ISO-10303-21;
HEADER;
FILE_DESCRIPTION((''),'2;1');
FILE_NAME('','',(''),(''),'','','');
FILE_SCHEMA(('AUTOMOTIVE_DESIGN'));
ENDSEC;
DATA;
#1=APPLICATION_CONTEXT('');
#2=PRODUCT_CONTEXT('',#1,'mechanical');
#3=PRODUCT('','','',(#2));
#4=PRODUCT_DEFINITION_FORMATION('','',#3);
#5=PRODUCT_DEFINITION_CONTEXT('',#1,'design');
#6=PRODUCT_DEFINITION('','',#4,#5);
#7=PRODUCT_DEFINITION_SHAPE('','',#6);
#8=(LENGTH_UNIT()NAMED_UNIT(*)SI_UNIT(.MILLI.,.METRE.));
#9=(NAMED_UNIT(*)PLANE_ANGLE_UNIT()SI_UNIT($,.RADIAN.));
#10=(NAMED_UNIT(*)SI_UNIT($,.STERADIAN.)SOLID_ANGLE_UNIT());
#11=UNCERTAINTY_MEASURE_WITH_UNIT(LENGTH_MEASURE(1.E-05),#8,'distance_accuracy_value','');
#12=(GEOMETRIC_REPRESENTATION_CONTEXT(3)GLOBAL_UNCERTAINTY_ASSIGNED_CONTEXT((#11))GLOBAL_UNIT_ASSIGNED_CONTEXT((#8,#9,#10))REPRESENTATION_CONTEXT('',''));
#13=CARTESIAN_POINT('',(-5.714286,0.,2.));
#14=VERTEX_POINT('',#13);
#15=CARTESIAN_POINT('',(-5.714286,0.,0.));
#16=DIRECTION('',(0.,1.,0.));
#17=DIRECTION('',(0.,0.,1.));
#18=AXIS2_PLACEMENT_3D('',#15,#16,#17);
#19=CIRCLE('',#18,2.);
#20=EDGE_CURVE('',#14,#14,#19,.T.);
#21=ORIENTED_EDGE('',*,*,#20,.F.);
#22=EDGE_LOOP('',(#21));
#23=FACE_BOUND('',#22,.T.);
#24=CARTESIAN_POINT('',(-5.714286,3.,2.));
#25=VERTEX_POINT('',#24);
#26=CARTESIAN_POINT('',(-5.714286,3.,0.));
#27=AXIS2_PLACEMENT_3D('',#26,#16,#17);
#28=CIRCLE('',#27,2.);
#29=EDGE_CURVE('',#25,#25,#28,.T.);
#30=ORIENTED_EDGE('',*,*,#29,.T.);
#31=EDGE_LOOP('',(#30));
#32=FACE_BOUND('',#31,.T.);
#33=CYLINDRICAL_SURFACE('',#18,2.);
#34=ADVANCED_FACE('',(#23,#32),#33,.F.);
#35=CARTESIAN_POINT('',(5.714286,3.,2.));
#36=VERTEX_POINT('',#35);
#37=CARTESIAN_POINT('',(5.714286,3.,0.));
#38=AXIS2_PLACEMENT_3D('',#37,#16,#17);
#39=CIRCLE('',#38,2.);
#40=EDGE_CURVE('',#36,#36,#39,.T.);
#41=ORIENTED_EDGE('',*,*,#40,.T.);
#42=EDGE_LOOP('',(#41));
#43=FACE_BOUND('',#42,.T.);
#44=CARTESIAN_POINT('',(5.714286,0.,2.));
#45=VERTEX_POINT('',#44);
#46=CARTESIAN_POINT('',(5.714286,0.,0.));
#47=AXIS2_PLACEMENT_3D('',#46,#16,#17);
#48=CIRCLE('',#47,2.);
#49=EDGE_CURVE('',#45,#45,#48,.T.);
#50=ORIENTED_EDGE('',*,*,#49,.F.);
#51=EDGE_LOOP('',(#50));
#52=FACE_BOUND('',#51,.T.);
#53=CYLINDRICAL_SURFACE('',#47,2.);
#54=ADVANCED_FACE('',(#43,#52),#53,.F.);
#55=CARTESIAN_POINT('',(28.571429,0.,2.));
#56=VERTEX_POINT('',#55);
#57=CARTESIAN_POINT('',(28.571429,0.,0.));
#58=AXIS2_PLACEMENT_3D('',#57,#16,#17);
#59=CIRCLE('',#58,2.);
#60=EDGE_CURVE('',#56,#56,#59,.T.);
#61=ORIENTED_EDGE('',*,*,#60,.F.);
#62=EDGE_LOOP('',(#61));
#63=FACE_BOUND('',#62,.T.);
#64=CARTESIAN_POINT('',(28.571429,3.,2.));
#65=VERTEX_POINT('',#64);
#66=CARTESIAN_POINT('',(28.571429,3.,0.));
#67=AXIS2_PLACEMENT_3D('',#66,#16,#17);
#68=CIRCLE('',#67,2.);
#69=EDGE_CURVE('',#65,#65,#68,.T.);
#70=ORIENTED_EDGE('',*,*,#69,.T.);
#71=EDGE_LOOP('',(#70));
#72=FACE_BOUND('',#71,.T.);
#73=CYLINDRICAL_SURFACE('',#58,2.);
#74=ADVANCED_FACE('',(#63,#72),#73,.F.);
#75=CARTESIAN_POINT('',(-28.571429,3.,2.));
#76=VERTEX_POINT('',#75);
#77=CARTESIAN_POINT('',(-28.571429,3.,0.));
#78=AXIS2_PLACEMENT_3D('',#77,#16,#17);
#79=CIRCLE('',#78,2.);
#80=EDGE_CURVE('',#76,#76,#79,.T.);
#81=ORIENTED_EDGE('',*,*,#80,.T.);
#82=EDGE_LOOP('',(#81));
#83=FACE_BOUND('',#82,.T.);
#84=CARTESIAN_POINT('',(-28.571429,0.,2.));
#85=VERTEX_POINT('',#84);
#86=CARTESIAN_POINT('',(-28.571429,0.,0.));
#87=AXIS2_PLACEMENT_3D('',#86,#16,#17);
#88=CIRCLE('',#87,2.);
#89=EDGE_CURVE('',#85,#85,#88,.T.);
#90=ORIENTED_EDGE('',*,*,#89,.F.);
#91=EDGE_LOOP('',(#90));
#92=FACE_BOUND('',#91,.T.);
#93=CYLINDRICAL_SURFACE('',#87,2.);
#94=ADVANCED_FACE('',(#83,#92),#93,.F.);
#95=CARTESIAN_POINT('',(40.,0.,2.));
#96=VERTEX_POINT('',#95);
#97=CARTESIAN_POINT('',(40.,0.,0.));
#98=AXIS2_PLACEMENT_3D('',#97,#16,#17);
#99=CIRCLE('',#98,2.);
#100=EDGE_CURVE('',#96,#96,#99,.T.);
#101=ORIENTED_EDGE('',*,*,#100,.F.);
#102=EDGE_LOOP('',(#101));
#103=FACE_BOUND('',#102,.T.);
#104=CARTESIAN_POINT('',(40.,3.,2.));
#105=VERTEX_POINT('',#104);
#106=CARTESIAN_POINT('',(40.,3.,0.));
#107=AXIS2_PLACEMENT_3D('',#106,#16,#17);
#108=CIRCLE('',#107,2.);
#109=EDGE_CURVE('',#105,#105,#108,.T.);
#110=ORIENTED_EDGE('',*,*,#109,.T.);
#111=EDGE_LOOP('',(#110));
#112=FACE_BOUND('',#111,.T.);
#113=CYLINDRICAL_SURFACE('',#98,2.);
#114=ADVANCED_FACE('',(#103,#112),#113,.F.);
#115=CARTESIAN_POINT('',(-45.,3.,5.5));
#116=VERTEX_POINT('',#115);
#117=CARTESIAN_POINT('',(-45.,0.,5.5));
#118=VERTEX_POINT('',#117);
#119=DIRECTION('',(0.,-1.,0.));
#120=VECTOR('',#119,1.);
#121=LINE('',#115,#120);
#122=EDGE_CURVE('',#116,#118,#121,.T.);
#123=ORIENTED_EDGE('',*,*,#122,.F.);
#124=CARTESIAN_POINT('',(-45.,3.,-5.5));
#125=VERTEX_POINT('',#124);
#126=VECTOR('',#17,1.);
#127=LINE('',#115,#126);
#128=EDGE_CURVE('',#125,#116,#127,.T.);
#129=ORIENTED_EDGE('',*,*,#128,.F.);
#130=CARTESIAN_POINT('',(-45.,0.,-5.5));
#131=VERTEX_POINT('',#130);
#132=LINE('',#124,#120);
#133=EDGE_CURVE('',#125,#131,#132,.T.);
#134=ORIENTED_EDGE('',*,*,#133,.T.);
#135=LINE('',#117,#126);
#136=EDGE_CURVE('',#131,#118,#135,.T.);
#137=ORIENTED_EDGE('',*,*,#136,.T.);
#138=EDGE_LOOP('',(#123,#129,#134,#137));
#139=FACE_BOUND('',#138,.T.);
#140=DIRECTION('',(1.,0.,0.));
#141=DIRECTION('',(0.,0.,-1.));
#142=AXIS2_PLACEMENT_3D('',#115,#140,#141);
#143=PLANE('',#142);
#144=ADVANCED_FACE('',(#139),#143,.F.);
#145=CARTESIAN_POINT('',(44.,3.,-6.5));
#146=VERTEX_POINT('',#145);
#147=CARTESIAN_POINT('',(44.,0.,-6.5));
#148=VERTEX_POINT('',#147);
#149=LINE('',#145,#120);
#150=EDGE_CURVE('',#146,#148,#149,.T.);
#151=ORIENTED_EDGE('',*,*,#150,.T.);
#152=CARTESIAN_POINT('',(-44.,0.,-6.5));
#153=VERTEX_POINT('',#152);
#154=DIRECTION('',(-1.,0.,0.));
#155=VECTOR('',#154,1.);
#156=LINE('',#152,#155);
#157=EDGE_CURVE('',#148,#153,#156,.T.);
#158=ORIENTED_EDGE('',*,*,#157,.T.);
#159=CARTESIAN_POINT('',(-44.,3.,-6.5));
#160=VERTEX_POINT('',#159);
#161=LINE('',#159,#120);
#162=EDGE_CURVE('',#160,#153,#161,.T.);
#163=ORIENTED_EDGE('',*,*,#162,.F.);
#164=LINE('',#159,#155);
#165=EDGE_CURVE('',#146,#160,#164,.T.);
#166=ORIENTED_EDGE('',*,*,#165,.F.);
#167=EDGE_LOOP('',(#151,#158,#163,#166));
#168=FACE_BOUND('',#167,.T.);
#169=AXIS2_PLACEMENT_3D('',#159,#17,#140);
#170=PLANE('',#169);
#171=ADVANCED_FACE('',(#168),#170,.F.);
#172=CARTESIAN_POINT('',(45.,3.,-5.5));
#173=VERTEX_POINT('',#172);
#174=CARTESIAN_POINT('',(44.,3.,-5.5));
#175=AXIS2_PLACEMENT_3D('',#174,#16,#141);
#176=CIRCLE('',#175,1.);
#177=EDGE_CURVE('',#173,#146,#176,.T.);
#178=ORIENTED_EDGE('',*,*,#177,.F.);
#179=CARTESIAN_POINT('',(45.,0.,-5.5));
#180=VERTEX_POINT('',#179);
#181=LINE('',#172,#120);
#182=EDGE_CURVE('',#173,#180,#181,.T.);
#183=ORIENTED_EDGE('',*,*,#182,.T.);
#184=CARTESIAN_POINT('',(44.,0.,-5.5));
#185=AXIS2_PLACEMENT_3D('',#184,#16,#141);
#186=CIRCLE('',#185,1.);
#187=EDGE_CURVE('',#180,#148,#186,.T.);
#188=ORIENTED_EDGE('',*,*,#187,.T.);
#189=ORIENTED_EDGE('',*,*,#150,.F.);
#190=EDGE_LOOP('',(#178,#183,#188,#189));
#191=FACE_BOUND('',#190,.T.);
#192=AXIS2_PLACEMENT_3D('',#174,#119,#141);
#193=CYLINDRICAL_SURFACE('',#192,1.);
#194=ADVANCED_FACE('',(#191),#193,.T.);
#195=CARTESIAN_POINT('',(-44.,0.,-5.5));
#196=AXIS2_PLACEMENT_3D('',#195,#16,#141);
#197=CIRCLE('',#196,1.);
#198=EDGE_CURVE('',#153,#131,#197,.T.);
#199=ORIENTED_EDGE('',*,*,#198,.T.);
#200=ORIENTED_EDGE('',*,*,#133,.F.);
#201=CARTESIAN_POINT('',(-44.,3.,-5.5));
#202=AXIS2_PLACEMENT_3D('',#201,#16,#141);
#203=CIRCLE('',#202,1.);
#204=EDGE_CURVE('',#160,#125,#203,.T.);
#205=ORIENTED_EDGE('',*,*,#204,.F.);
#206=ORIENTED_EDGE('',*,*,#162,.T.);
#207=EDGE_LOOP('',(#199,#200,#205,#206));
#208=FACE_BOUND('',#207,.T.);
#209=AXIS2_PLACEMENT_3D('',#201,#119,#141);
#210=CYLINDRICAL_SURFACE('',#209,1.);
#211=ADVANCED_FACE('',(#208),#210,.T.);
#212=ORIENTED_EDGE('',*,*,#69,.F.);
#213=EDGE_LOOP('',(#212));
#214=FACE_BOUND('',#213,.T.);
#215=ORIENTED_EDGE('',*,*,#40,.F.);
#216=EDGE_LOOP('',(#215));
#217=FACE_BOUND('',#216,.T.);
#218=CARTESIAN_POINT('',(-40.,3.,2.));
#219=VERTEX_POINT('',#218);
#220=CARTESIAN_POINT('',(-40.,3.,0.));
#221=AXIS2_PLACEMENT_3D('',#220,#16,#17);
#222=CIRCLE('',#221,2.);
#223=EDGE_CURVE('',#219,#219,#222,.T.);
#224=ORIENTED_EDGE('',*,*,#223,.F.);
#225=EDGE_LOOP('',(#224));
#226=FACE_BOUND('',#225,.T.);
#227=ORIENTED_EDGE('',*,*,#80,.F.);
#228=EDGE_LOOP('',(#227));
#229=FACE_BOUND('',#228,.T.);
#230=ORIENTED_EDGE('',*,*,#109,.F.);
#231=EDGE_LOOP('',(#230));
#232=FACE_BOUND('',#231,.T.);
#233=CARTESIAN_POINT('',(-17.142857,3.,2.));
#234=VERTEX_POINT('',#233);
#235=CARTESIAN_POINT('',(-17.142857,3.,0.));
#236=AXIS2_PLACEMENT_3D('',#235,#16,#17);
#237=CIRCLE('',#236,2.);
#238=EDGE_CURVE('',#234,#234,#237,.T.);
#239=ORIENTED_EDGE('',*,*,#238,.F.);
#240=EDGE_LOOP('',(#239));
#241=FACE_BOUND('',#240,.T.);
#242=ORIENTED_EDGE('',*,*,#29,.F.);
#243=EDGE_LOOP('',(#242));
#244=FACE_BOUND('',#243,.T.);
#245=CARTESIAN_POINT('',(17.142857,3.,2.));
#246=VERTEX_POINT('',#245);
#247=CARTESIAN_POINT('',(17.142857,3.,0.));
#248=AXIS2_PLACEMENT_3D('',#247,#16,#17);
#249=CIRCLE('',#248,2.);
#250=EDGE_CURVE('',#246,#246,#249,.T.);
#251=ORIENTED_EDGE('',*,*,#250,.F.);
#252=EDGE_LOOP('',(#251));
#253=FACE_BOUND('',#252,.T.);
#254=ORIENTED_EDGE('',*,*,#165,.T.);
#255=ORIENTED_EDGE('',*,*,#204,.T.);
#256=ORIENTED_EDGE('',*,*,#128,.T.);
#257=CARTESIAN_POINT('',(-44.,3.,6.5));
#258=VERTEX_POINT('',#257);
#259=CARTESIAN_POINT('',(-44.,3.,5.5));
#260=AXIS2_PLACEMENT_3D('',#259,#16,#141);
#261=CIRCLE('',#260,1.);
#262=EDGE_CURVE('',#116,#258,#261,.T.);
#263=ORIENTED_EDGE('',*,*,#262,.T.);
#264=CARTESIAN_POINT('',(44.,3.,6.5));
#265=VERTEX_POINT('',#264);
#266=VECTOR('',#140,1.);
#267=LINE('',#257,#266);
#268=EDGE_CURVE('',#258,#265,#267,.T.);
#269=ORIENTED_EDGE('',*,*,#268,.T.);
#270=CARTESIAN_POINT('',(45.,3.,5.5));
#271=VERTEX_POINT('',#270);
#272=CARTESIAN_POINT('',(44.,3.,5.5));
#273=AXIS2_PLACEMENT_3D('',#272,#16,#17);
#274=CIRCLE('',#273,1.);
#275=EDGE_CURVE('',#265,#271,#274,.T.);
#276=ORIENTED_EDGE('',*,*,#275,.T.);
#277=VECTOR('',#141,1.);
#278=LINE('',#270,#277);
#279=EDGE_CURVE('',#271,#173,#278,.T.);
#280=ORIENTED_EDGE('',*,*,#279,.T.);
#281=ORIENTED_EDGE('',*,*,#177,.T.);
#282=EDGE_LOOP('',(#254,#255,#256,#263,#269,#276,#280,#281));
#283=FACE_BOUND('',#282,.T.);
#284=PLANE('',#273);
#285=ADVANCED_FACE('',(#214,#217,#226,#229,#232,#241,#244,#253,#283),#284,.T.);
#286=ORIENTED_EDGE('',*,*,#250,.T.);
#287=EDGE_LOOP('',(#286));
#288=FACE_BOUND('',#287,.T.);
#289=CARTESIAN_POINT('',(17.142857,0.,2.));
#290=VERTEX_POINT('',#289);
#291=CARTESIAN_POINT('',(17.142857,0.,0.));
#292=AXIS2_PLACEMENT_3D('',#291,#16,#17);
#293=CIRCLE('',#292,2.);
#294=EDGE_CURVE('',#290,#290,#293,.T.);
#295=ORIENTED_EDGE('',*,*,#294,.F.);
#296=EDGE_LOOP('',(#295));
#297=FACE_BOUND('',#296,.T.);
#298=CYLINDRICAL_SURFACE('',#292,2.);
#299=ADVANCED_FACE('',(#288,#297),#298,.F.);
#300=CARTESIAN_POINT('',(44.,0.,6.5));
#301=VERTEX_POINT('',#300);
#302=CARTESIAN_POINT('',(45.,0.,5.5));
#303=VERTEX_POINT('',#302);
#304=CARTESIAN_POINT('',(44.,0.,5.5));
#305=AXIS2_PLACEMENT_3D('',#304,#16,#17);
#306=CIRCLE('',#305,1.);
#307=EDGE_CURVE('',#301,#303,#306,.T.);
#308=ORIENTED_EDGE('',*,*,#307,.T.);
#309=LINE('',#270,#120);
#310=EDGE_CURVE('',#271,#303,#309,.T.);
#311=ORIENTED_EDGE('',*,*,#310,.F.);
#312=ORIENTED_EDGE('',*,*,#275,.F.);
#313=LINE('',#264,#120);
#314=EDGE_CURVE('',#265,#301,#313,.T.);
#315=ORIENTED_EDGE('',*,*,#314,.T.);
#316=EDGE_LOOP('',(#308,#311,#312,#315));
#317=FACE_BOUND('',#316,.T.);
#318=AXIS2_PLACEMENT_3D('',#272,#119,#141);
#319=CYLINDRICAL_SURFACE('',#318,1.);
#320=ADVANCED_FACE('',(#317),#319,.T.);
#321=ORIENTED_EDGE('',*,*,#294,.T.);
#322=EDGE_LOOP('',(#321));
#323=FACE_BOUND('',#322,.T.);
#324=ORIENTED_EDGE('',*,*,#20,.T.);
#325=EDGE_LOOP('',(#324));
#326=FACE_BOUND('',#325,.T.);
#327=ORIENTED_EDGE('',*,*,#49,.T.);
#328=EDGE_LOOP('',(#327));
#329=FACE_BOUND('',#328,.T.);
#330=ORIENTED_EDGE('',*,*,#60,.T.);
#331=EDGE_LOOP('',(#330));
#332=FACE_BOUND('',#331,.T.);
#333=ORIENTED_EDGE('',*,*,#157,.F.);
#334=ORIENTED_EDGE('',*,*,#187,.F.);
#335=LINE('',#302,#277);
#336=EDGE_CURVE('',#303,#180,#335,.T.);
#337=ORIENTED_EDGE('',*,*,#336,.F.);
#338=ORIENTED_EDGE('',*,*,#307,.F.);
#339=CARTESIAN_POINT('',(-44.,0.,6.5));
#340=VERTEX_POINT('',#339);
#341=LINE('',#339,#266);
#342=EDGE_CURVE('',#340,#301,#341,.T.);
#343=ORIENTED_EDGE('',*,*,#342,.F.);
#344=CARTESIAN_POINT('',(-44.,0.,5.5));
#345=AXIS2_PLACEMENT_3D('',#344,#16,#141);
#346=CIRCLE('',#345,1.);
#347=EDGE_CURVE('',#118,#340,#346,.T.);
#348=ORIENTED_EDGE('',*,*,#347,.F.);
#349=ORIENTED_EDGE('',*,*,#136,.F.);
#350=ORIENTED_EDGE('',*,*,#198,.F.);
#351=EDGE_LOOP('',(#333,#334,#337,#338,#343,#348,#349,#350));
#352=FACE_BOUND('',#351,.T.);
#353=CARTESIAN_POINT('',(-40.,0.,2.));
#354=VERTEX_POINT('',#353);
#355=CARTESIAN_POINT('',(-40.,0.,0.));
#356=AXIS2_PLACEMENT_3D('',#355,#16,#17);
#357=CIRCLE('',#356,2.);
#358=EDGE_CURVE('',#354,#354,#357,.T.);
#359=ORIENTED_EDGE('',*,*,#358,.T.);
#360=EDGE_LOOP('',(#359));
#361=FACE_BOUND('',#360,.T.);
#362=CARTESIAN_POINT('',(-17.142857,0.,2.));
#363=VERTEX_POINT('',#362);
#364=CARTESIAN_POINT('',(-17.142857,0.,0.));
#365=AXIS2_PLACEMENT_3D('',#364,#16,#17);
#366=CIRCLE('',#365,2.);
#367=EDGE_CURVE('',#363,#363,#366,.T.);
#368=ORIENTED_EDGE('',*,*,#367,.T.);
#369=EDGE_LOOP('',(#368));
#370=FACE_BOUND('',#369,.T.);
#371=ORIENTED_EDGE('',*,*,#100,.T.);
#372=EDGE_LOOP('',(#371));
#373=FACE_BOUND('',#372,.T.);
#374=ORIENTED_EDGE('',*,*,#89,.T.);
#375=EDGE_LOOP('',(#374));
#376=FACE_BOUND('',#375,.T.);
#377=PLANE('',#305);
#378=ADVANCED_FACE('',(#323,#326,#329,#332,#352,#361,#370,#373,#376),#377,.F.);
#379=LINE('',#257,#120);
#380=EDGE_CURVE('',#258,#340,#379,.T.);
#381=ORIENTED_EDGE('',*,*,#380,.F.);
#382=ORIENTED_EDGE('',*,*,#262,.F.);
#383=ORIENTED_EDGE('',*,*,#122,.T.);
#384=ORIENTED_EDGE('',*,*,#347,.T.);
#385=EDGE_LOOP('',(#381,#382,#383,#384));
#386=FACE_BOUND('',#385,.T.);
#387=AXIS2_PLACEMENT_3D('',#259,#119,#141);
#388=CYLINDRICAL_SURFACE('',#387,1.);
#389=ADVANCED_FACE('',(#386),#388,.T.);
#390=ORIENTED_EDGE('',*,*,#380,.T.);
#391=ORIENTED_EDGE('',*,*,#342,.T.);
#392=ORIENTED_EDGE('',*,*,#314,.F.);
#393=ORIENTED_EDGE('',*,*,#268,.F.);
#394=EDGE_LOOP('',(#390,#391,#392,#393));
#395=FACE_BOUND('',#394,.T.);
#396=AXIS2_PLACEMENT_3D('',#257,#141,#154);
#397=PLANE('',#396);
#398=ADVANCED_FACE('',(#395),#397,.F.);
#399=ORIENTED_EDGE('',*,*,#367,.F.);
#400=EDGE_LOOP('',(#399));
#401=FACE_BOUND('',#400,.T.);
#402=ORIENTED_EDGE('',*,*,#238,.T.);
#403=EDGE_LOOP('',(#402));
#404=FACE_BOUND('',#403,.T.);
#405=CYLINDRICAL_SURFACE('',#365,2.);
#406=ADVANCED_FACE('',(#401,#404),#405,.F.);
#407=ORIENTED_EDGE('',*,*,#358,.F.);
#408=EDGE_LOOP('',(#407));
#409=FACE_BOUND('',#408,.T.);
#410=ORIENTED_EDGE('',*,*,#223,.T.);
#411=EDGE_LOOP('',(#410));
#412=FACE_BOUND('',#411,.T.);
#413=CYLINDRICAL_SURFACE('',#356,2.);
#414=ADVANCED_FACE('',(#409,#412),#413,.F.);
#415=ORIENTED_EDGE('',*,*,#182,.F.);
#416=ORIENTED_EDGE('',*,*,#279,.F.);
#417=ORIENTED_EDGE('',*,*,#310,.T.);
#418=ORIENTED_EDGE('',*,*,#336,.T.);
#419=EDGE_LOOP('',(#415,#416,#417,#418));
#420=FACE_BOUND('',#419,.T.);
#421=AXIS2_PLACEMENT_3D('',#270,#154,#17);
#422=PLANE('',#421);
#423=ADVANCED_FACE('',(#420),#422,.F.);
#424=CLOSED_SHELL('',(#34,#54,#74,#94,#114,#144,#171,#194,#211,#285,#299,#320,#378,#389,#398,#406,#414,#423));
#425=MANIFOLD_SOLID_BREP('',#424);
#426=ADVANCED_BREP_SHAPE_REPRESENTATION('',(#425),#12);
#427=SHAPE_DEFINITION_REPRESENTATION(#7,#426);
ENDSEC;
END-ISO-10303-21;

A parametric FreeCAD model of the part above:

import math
import FreeCAD as App
import Part
import Sketcher
Q = App.Units.Quantity

doc = App.newDocument("Part")
body = doc.addObject("PartDesign::Body", "Body")

sketch1 = body.newObject("Sketcher::SketchObject", "Sketch")
sketch1.AttachmentSupport = (doc.getObject("XZ_Plane"), [""])
sketch1.MapMode = "FlatFace"
sketch1.addGeometry([
    Part.LineSegment(App.Vector(-44, 6.5, 0), App.Vector(44, 6.5, 0)),
    Part.ArcOfCircle(Part.Circle(App.Vector(44, 5.5, 0), App.Vector(0, 0, 1), 1), math.radians(0), math.radians(90)),
    Part.LineSegment(App.Vector(45, 5.5, 0), App.Vector(45, -5.5, 0)),
    Part.ArcOfCircle(Part.Circle(App.Vector(44, -5.5, 0), App.Vector(0, 0, 1), 1), math.radians(-90), math.radians(0)),
    Part.LineSegment(App.Vector(44, -6.5, 0), App.Vector(-44, -6.5, 0)),
    Part.ArcOfCircle(Part.Circle(App.Vector(-44, -5.5, 0), App.Vector(0, 0, 1), 1), math.radians(-180), math.radians(-90)),
    Part.LineSegment(App.Vector(-45, -5.5, 0), App.Vector(-45, 5.5, 0)),
    Part.ArcOfCircle(Part.Circle(App.Vector(-44, 5.5, 0), App.Vector(0, 0, 1), 1), math.radians(90), math.radians(180)),
], False)
sketch1.addConstraint([
    Sketcher.Constraint("Tangent", 0, 2, 1, 2),
    Sketcher.Constraint("Tangent", 1, 1, 2, 1),
    Sketcher.Constraint("Tangent", 2, 2, 3, 2),
    Sketcher.Constraint("Tangent", 3, 1, 4, 1),
    Sketcher.Constraint("Tangent", 4, 2, 5, 2),
    Sketcher.Constraint("Tangent", 5, 1, 6, 1),
    Sketcher.Constraint("Tangent", 6, 2, 7, 2),
    Sketcher.Constraint("Tangent", 7, 1, 0, 1),
    Sketcher.Constraint("Horizontal", 0),
    Sketcher.Constraint("Vertical", 2),
    Sketcher.Constraint("Horizontal", 4),
    Sketcher.Constraint("Vertical", 6),
    Sketcher.Constraint("Equal", 1, 3),
    Sketcher.Constraint("Equal", 3, 5),
    Sketcher.Constraint("Equal", 5, 7),
    Sketcher.Constraint("Symmetric", 1, 3, 5, 3, -1, 1),
    Sketcher.Constraint("Radius", 1, Q("1 mm")),
    Sketcher.Constraint("DistanceX", 0, 1, 0, 2, Q("88 mm")),
    Sketcher.Constraint("DistanceY", 2, 2, 2, 1, Q("11 mm")),
])
pad1 = body.newObject("PartDesign::Pad", "Pad")
pad1.Profile = sketch1
pad1.Length = 3
pad1.Reversed = True

sketch2 = body.newObject("Sketcher::SketchObject", "Sketch001")
sketch2.AttachmentSupport = (doc.getObject("XZ_Plane"), [""])
sketch2.MapMode = "FlatFace"
sketch2.AttachmentOffset = App.Placement(App.Vector(0, 0, -3), App.Rotation())
sketch2.addGeometry([
    Part.Circle(App.Vector(-40, 0, 0), App.Vector(0, 0, 1), 2),
    Part.Circle(App.Vector(-28.6, 0, 0), App.Vector(0, 0, 1), 2),
    Part.Circle(App.Vector(-17.1, 0, 0), App.Vector(0, 0, 1), 2),
    Part.Circle(App.Vector(-5.7, 0, 0), App.Vector(0, 0, 1), 2),
    Part.Circle(App.Vector(5.7, 0, 0), App.Vector(0, 0, 1), 2),
    Part.Circle(App.Vector(17.1, 0, 0), App.Vector(0, 0, 1), 2),
    Part.Circle(App.Vector(28.6, 0, 0), App.Vector(0, 0, 1), 2),
    Part.Circle(App.Vector(40, 0, 0), App.Vector(0, 0, 1), 2),
], False)
sketch2.addConstraint([
    Sketcher.Constraint("Equal", 0, 1),
    Sketcher.Constraint("Equal", 1, 2),
    Sketcher.Constraint("Equal", 2, 3),
    Sketcher.Constraint("Equal", 3, 4),
    Sketcher.Constraint("Equal", 4, 5),
    Sketcher.Constraint("Equal", 5, 6),
    Sketcher.Constraint("Equal", 6, 7),
    Sketcher.Constraint("Symmetric", 3, 3, 4, 3, -1, 1),
    Sketcher.Constraint("Symmetric", 2, 3, 5, 3, -1, 1),
    Sketcher.Constraint("Symmetric", 1, 3, 6, 3, -1, 1),
    Sketcher.Constraint("Symmetric", 0, 3, 7, 3, -1, 1),
    Sketcher.Constraint("PointOnObject", 0, 3, -1),
    Sketcher.Constraint("PointOnObject", 1, 3, -1),
    Sketcher.Constraint("PointOnObject", 2, 3, -1),
    Sketcher.Constraint("PointOnObject", 3, 3, -1),
    Sketcher.Constraint("Diameter", 0, Q("4 mm")),
    Sketcher.Constraint("DistanceX", 0, 3, -1, 1, Q("40 mm")),
    Sketcher.Constraint("DistanceX", 1, 3, -1, 1, Q("28.571429 mm")),
    Sketcher.Constraint("DistanceX", 1, 3, 2, 3, Q("11.428571 mm")),
    Sketcher.Constraint("DistanceX", 2, 3, 3, 3, Q("11.428571 mm")),
])
pocket1 = body.newObject("PartDesign::Pocket", "Pocket")
pocket1.Profile = sketch2
pocket1.Type = "ThroughAll"
pocket1.Reversed = True

doc.recompute()
